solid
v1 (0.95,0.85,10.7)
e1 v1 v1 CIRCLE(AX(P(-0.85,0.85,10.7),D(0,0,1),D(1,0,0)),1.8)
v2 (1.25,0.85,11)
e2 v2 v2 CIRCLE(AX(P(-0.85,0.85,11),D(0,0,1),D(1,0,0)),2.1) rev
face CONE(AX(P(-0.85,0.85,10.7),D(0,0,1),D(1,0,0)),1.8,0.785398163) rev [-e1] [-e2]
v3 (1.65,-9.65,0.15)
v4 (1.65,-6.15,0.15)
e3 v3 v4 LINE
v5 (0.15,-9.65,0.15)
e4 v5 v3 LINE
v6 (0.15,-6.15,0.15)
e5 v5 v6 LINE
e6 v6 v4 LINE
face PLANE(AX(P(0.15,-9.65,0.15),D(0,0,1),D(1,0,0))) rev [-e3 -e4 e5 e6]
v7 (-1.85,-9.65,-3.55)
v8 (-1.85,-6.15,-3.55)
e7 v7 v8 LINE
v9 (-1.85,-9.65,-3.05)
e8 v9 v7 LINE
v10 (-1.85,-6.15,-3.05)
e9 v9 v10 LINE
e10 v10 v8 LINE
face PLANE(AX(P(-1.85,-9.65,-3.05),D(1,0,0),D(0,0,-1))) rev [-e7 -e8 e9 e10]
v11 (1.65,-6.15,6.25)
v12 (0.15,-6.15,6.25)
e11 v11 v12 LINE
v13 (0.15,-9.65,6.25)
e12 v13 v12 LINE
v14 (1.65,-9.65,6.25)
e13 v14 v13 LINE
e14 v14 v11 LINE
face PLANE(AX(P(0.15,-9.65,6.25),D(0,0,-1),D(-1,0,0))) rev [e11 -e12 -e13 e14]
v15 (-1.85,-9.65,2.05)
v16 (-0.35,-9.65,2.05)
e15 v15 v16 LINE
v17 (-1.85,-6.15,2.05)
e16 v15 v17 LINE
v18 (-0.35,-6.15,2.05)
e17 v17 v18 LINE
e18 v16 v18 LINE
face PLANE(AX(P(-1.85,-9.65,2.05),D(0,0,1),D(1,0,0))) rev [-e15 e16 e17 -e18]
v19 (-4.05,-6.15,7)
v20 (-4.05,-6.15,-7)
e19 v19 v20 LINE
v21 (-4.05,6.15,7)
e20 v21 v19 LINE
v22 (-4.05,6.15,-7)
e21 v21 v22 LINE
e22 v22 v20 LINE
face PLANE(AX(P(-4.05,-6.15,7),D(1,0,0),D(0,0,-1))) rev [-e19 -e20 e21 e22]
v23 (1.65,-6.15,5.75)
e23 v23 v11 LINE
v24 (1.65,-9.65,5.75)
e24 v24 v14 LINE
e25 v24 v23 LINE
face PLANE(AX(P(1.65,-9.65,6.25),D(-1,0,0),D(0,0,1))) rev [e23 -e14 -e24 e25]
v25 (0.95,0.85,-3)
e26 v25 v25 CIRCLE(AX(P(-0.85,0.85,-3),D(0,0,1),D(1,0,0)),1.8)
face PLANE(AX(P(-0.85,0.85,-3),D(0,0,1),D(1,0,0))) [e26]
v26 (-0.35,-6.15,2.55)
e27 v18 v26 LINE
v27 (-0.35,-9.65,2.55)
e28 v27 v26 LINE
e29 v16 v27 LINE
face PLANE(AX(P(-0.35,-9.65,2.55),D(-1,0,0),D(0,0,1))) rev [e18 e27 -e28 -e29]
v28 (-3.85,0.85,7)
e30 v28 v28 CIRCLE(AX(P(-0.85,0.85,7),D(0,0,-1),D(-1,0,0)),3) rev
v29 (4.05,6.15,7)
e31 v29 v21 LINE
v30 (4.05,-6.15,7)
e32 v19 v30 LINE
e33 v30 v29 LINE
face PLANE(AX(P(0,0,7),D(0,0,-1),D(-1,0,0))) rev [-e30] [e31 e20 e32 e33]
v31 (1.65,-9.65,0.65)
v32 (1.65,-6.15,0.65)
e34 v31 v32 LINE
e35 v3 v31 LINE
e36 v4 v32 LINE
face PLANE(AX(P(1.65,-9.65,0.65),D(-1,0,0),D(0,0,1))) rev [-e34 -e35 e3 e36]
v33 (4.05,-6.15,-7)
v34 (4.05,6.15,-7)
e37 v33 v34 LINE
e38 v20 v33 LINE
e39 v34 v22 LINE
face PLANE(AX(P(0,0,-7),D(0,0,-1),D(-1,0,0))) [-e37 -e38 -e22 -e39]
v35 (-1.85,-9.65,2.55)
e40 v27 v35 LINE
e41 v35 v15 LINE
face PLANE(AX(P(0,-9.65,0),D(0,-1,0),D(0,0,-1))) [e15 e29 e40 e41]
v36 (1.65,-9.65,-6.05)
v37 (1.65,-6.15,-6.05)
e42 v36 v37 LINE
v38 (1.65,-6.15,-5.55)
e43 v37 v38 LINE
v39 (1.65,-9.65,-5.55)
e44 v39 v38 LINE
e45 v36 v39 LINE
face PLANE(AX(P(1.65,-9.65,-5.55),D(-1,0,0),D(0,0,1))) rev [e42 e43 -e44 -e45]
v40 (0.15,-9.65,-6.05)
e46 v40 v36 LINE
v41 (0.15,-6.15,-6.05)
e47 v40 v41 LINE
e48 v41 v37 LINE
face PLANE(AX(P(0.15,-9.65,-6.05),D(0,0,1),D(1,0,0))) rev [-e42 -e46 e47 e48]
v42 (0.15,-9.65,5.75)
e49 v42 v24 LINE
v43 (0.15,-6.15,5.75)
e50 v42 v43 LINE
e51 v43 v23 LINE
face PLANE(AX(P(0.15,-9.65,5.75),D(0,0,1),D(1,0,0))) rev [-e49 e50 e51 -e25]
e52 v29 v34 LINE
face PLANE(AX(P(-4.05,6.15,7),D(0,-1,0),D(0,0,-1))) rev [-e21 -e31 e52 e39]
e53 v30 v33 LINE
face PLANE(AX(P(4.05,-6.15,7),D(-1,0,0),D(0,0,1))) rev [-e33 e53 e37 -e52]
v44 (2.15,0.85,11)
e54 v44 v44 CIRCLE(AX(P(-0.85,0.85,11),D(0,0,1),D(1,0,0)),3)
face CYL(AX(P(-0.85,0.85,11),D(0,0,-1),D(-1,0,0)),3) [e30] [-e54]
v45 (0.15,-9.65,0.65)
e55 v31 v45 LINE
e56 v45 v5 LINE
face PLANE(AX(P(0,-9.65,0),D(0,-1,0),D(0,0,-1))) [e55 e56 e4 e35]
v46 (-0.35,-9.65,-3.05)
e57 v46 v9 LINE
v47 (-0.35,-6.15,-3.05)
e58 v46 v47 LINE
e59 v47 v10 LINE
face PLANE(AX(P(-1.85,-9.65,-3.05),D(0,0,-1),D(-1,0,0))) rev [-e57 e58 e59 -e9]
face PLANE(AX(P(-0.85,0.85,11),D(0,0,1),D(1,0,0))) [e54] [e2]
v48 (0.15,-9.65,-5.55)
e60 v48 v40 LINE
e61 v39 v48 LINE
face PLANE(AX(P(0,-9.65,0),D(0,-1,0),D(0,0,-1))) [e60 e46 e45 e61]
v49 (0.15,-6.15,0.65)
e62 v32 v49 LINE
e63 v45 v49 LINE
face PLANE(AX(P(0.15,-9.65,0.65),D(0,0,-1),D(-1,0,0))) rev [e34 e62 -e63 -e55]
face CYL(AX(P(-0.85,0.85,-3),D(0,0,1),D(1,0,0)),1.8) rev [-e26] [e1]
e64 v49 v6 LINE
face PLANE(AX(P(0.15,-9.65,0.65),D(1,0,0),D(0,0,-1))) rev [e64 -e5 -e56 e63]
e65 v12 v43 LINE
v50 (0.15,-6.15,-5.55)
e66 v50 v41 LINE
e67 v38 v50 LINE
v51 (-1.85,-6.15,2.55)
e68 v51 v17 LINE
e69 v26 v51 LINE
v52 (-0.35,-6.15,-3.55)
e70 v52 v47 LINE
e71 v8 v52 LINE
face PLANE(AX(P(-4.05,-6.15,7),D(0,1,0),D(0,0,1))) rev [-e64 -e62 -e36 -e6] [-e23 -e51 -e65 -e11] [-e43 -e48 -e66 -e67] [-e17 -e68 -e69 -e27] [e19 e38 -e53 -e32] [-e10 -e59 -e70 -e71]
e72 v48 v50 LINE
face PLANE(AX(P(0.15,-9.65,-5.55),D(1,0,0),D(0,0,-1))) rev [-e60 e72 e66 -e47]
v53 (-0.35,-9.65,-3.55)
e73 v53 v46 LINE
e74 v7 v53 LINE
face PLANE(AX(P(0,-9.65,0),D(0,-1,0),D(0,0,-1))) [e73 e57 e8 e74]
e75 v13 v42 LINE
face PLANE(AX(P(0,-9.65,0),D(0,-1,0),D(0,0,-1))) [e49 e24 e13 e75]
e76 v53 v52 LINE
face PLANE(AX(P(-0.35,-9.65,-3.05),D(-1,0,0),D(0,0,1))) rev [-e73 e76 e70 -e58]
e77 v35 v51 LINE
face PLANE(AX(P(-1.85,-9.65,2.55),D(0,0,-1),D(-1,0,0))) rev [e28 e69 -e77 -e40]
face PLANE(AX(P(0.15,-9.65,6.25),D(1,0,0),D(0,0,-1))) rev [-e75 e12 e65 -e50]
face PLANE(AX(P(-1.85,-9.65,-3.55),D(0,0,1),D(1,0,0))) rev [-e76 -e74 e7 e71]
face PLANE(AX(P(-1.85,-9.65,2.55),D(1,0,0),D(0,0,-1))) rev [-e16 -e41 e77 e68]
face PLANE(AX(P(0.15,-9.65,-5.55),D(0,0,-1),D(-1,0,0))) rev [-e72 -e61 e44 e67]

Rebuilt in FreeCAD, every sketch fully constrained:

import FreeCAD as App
import Part
import Sketcher
from FreeCAD import Vector
Q = App.Units.Quantity


def edges_at(feature, points):
    """Names of the edges that pass closest to the given points."""
    edges = feature.Shape.Edges
    near = lambda p: min(range(len(edges)), key=lambda i: edges[i].distToShape(Part.Vertex(*p))[0])
    return sorted({f"Edge{near(p) + 1}" for p in points})

doc = App.newDocument("Part")
body = doc.addObject("PartDesign::Body", "Body")

sketch1 = body.newObject("Sketcher::SketchObject", "Sketch")
sketch1.AttachmentSupport = (doc.getObject("XY_Plane"), [""])
sketch1.MapMode = "FlatFace"
sketch1.addGeometry(Part.LineSegment(Vector(-4, 6, 0), Vector(-4, -6, 0)), False)
sketch1.addGeometry(Part.LineSegment(Vector(-4, -6, 0), Vector(4, -6, 0)), False)
sketch1.addGeometry(Part.LineSegment(Vector(4, -6, 0), Vector(4, 6, 0)), False)
sketch1.addGeometry(Part.LineSegment(Vector(4, 6, 0), Vector(-4, 6, 0)), False)
sketch1.addConstraint(Sketcher.Constraint("Coincident", 0, 2, 1, 1))
sketch1.addConstraint(Sketcher.Constraint("Coincident", 1, 2, 2, 1))
sketch1.addConstraint(Sketcher.Constraint("Coincident", 2, 2, 3, 1))
sketch1.addConstraint(Sketcher.Constraint("Coincident", 3, 2, 0, 1))
sketch1.addConstraint(Sketcher.Constraint("Vertical", 0))
sketch1.addConstraint(Sketcher.Constraint("Horizontal", 1))
sketch1.addConstraint(Sketcher.Constraint("Vertical", 2))
sketch1.addConstraint(Sketcher.Constraint("Horizontal", 3))
sketch1.addConstraint(Sketcher.Constraint("Symmetric", 0, 2, 2, 2, -1, 1))
sketch1.addConstraint(Sketcher.Constraint("DistanceX", 1, 1, 1, 2, Q("8.1 mm")))
sketch1.addConstraint(Sketcher.Constraint("DistanceY", 0, 2, 0, 1, Q("12.3 mm")))
pad1 = body.newObject("PartDesign::Pad", "Pad")
pad1.Profile = sketch1
pad1.Length = 14
pad1.Midplane = True

sketch2 = body.newObject("Sketcher::SketchObject", "Sketch001")
sketch2.AttachmentSupport = (doc.getObject("XY_Plane"), [""])
sketch2.MapMode = "FlatFace"
sketch2.AttachmentOffset = App.Placement(Vector(0, 0, 7), App.Rotation())
sketch2.addGeometry(Part.Circle(Vector(-0.8, 0.8, 0), Vector(0, 0, 1), 3), False)
sketch2.addConstraint(Sketcher.Constraint("Diameter", 0, Q("6 mm")))
sketch2.addConstraint(Sketcher.Constraint("DistanceX", 0, 3, -1, 1, Q("0.85 mm")))
sketch2.addConstraint(Sketcher.Constraint("DistanceY", -1, 1, 0, 3, Q("0.85 mm")))
pad2 = body.newObject("PartDesign::Pad", "Pad001")
pad2.Profile = sketch2
pad2.Length = 4

sketch3 = body.newObject("Sketcher::SketchObject", "Sketch002")
sketch3.AttachmentSupport = (doc.getObject("XY_Plane"), [""])
sketch3.MapMode = "FlatFace"
sketch3.AttachmentOffset = App.Placement(Vector(0, 0, 11), App.Rotation())
sketch3.addGeometry(Part.Circle(Vector(-0.8, 0.8, 0), Vector(0, 0, 1), 1.8), False)
sketch3.addConstraint(Sketcher.Constraint("Diameter", 0, Q("3.6 mm")))
sketch3.addConstraint(Sketcher.Constraint("DistanceX", 0, 3, -1, 1, Q("0.85 mm")))
sketch3.addConstraint(Sketcher.Constraint("DistanceY", -1, 1, 0, 3, Q("0.85 mm")))
pocket1 = body.newObject("PartDesign::Pocket", "Pocket")
pocket1.Profile = sketch3
pocket1.Length = 14
doc.recompute()

chamfer = body.newObject("PartDesign::Chamfer", "Chamfer")
chamfer.Base = (pocket1, edges_at(pocket1, [(-2.65, 0.85, 11)]))
chamfer.Size = 0.3

sketch4 = body.newObject("Sketcher::SketchObject", "Sketch003")
sketch4.AttachmentSupport = (doc.getObject("XZ_Plane"), [""])
sketch4.MapMode = "FlatFace"
sketch4.AttachmentOffset = App.Placement(Vector(0, 0, 6.15), App.Rotation())
sketch4.addGeometry(Part.LineSegment(Vector(0.1, 6.2, 0), Vector(0.1, 5.8, 0)), False)
sketch4.addGeometry(Part.LineSegment(Vector(0.1, 5.8, 0), Vector(1.6, 5.8, 0)), False)
sketch4.addGeometry(Part.LineSegment(Vector(1.6, 5.8, 0), Vector(1.6, 6.2, 0)), False)
sketch4.addGeometry(Part.LineSegment(Vector(1.6, 6.2, 0), Vector(0.1, 6.2, 0)), False)
sketch4.addGeometry(Part.LineSegment(Vector(-1.9, 2.5, 0), Vector(-1.9, 2, 0)), False)
sketch4.addGeometry(Part.LineSegment(Vector(-1.9, 2, 0), Vector(-0.3, 2, 0)), False)
sketch4.addGeometry(Part.LineSegment(Vector(-0.3, 2, 0), Vector(-0.3, 2.5, 0)), False)
sketch4.addGeometry(Part.LineSegment(Vector(-0.3, 2.5, 0), Vector(-1.9, 2.5, 0)), False)
sketch4.addGeometry(Part.LineSegment(Vector(0.1, 0.7, 0), Vector(0.1, 0.1, 0)), False)
sketch4.addGeometry(Part.LineSegment(Vector(0.1, 0.1, 0), Vector(1.6, 0.1, 0)), False)
sketch4.addGeometry(Part.LineSegment(Vector(1.6, 0.1, 0), Vector(1.6, 0.7, 0)), False)
sketch4.addGeometry(Part.LineSegment(Vector(1.6, 0.7, 0), Vector(0.1, 0.7, 0)), False)
sketch4.addGeometry(Part.LineSegment(Vector(-1.9, -3, 0), Vector(-1.9, -3.5, 0)), False)
sketch4.addGeometry(Part.LineSegment(Vector(-1.9, -3.5, 0), Vector(-0.3, -3.5, 0)), False)
sketch4.addGeometry(Part.LineSegment(Vector(-0.3, -3.5, 0), Vector(-0.3, -3, 0)), False)
sketch4.addGeometry(Part.LineSegment(Vector(-0.3, -3, 0), Vector(-1.9, -3, 0)), False)
sketch4.addGeometry(Part.LineSegment(Vector(0.1, -5.5, 0), Vector(0.1, -6, 0)), False)
sketch4.addGeometry(Part.LineSegment(Vector(0.1, -6, 0), Vector(1.6, -6, 0)), False)
sketch4.addGeometry(Part.LineSegment(Vector(1.6, -6, 0), Vector(1.6, -5.5, 0)), False)
sketch4.addGeometry(Part.LineSegment(Vector(1.6, -5.5, 0), Vector(0.1, -5.5, 0)), False)
sketch4.addConstraint(Sketcher.Constraint("Coincident", 0, 2, 1, 1))
sketch4.addConstraint(Sketcher.Constraint("Coincident", 1, 2, 2, 1))
sketch4.addConstraint(Sketcher.Constraint("Coincident", 2, 2, 3, 1))
sketch4.addConstraint(Sketcher.Constraint("Coincident", 3, 2, 0, 1))
sketch4.addConstraint(Sketcher.Constraint("Coincident", 4, 2, 5, 1))
sketch4.addConstraint(Sketcher.Constraint("Coincident", 5, 2, 6, 1))
sketch4.addConstraint(Sketcher.Constraint("Coincident", 6, 2, 7, 1))
sketch4.addConstraint(Sketcher.Constraint("Coincident", 7, 2, 4, 1))
sketch4.addConstraint(Sketcher.Constraint("Coincident", 8, 2, 9, 1))
sketch4.addConstraint(Sketcher.Constraint("Coincident", 9, 2, 10, 1))
sketch4.addConstraint(Sketcher.Constraint("Coincident", 10, 2, 11, 1))
sketch4.addConstraint(Sketcher.Constraint("Coincident", 11, 2, 8, 1))
sketch4.addConstraint(Sketcher.Constraint("Coincident", 12, 2, 13, 1))
sketch4.addConstraint(Sketcher.Constraint("Coincident", 13, 2, 14, 1))
sketch4.addConstraint(Sketcher.Constraint("Coincident", 14, 2, 15, 1))
sketch4.addConstraint(Sketcher.Constraint("Coincident", 15, 2, 12, 1))
sketch4.addConstraint(Sketcher.Constraint("Coincident", 16, 2, 17, 1))
sketch4.addConstraint(Sketcher.Constraint("Coincident", 17, 2, 18, 1))
sketch4.addConstraint(Sketcher.Constraint("Coincident", 18, 2, 19, 1))
sketch4.addConstraint(Sketcher.Constraint("Coincident", 19, 2, 16, 1))
sketch4.addConstraint(Sketcher.Constraint("Vertical", 0))
sketch4.addConstraint(Sketcher.Constraint("Horizontal", 1))
sketch4.addConstraint(Sketcher.Constraint("Vertical", 2))
sketch4.addConstraint(Sketcher.Constraint("Horizontal", 3))
sketch4.addConstraint(Sketcher.Constraint("Vertical", 4))
sketch4.addConstraint(Sketcher.Constraint("Horizontal", 5))
sketch4.addConstraint(Sketcher.Constraint("Vertical", 6))
sketch4.addConstraint(Sketcher.Constraint("Horizontal", 7))
sketch4.addConstraint(Sketcher.Constraint("Vertical", 8))
sketch4.addConstraint(Sketcher.Constraint("Horizontal", 9))
sketch4.addConstraint(Sketcher.Constraint("Vertical", 10))
sketch4.addConstraint(Sketcher.Constraint("Horizontal", 11))
sketch4.addConstraint(Sketcher.Constraint("Vertical", 12))
sketch4.addConstraint(Sketcher.Constraint("Horizontal", 13))
sketch4.addConstraint(Sketcher.Constraint("Vertical", 14))
sketch4.addConstraint(Sketcher.Constraint("Horizontal", 15))
sketch4.addConstraint(Sketcher.Constraint("Vertical", 16))
sketch4.addConstraint(Sketcher.Constraint("Horizontal", 17))
sketch4.addConstraint(Sketcher.Constraint("Vertical", 18))
sketch4.addConstraint(Sketcher.Constraint("Horizontal", 19))
sketch4.addConstraint(Sketcher.Constraint("Vertical", 3, 2, 8, 2))
sketch4.addConstraint(Sketcher.Constraint("Vertical", 2, 2, 9, 2))
sketch4.addConstraint(Sketcher.Constraint("Vertical", 7, 2, 12, 2))
sketch4.addConstraint(Sketcher.Constraint("Vertical", 6, 2, 13, 2))
sketch4.addConstraint(Sketcher.Constraint("Vertical", 11, 2, 16, 2))
sketch4.addConstraint(Sketcher.Constraint("Vertical", 10, 2, 17, 2))
sketch4.addConstraint(Sketcher.Constraint("Equal", 3, 5))
sketch4.addConstraint(Sketcher.Constraint("Equal", 2, 4))
sketch4.addConstraint(Sketcher.Constraint("Equal", 6, 8))
sketch4.addConstraint(Sketcher.Constraint("Equal", 10, 12))
sketch4.addConstraint(Sketcher.Constraint("Equal", 14, 16))
sketch4.addConstraint(Sketcher.Constraint("DistanceX", 1, 1, 1, 2, Q("1.5 mm")))
sketch4.addConstraint(Sketcher.Constraint("DistanceY", 0, 2, 0, 1, Q("0.5 mm")))
sketch4.addConstraint(Sketcher.Constraint("DistanceX", 4, 2, 0, 2, Q("2 mm")))
sketch4.addConstraint(Sketcher.Constraint("DistanceY", 16, 2, 14, 2, Q("3 mm")))
sketch4.addConstraint(Sketcher.Constraint("DistanceY", 4, 2, 0, 2, Q("3.7 mm")))
sketch4.addConstraint(Sketcher.Constraint("DistanceY", 8, 2, 5, 2, Q("1.9 mm")))
sketch4.addConstraint(Sketcher.Constraint("DistanceY", 12, 2, 8, 2, Q("3.7 mm")))
sketch4.addConstraint(Sketcher.Constraint("DistanceX", -1, 1, 0, 2, Q("0.15 mm")))
sketch4.addConstraint(Sketcher.Constraint("DistanceY", -1, 1, 0, 2, Q("5.75 mm")))
pad3 = body.newObject("PartDesign::Pad", "Pad002")
pad3.Profile = sketch4
pad3.Length = 3.5

doc.recompute()
